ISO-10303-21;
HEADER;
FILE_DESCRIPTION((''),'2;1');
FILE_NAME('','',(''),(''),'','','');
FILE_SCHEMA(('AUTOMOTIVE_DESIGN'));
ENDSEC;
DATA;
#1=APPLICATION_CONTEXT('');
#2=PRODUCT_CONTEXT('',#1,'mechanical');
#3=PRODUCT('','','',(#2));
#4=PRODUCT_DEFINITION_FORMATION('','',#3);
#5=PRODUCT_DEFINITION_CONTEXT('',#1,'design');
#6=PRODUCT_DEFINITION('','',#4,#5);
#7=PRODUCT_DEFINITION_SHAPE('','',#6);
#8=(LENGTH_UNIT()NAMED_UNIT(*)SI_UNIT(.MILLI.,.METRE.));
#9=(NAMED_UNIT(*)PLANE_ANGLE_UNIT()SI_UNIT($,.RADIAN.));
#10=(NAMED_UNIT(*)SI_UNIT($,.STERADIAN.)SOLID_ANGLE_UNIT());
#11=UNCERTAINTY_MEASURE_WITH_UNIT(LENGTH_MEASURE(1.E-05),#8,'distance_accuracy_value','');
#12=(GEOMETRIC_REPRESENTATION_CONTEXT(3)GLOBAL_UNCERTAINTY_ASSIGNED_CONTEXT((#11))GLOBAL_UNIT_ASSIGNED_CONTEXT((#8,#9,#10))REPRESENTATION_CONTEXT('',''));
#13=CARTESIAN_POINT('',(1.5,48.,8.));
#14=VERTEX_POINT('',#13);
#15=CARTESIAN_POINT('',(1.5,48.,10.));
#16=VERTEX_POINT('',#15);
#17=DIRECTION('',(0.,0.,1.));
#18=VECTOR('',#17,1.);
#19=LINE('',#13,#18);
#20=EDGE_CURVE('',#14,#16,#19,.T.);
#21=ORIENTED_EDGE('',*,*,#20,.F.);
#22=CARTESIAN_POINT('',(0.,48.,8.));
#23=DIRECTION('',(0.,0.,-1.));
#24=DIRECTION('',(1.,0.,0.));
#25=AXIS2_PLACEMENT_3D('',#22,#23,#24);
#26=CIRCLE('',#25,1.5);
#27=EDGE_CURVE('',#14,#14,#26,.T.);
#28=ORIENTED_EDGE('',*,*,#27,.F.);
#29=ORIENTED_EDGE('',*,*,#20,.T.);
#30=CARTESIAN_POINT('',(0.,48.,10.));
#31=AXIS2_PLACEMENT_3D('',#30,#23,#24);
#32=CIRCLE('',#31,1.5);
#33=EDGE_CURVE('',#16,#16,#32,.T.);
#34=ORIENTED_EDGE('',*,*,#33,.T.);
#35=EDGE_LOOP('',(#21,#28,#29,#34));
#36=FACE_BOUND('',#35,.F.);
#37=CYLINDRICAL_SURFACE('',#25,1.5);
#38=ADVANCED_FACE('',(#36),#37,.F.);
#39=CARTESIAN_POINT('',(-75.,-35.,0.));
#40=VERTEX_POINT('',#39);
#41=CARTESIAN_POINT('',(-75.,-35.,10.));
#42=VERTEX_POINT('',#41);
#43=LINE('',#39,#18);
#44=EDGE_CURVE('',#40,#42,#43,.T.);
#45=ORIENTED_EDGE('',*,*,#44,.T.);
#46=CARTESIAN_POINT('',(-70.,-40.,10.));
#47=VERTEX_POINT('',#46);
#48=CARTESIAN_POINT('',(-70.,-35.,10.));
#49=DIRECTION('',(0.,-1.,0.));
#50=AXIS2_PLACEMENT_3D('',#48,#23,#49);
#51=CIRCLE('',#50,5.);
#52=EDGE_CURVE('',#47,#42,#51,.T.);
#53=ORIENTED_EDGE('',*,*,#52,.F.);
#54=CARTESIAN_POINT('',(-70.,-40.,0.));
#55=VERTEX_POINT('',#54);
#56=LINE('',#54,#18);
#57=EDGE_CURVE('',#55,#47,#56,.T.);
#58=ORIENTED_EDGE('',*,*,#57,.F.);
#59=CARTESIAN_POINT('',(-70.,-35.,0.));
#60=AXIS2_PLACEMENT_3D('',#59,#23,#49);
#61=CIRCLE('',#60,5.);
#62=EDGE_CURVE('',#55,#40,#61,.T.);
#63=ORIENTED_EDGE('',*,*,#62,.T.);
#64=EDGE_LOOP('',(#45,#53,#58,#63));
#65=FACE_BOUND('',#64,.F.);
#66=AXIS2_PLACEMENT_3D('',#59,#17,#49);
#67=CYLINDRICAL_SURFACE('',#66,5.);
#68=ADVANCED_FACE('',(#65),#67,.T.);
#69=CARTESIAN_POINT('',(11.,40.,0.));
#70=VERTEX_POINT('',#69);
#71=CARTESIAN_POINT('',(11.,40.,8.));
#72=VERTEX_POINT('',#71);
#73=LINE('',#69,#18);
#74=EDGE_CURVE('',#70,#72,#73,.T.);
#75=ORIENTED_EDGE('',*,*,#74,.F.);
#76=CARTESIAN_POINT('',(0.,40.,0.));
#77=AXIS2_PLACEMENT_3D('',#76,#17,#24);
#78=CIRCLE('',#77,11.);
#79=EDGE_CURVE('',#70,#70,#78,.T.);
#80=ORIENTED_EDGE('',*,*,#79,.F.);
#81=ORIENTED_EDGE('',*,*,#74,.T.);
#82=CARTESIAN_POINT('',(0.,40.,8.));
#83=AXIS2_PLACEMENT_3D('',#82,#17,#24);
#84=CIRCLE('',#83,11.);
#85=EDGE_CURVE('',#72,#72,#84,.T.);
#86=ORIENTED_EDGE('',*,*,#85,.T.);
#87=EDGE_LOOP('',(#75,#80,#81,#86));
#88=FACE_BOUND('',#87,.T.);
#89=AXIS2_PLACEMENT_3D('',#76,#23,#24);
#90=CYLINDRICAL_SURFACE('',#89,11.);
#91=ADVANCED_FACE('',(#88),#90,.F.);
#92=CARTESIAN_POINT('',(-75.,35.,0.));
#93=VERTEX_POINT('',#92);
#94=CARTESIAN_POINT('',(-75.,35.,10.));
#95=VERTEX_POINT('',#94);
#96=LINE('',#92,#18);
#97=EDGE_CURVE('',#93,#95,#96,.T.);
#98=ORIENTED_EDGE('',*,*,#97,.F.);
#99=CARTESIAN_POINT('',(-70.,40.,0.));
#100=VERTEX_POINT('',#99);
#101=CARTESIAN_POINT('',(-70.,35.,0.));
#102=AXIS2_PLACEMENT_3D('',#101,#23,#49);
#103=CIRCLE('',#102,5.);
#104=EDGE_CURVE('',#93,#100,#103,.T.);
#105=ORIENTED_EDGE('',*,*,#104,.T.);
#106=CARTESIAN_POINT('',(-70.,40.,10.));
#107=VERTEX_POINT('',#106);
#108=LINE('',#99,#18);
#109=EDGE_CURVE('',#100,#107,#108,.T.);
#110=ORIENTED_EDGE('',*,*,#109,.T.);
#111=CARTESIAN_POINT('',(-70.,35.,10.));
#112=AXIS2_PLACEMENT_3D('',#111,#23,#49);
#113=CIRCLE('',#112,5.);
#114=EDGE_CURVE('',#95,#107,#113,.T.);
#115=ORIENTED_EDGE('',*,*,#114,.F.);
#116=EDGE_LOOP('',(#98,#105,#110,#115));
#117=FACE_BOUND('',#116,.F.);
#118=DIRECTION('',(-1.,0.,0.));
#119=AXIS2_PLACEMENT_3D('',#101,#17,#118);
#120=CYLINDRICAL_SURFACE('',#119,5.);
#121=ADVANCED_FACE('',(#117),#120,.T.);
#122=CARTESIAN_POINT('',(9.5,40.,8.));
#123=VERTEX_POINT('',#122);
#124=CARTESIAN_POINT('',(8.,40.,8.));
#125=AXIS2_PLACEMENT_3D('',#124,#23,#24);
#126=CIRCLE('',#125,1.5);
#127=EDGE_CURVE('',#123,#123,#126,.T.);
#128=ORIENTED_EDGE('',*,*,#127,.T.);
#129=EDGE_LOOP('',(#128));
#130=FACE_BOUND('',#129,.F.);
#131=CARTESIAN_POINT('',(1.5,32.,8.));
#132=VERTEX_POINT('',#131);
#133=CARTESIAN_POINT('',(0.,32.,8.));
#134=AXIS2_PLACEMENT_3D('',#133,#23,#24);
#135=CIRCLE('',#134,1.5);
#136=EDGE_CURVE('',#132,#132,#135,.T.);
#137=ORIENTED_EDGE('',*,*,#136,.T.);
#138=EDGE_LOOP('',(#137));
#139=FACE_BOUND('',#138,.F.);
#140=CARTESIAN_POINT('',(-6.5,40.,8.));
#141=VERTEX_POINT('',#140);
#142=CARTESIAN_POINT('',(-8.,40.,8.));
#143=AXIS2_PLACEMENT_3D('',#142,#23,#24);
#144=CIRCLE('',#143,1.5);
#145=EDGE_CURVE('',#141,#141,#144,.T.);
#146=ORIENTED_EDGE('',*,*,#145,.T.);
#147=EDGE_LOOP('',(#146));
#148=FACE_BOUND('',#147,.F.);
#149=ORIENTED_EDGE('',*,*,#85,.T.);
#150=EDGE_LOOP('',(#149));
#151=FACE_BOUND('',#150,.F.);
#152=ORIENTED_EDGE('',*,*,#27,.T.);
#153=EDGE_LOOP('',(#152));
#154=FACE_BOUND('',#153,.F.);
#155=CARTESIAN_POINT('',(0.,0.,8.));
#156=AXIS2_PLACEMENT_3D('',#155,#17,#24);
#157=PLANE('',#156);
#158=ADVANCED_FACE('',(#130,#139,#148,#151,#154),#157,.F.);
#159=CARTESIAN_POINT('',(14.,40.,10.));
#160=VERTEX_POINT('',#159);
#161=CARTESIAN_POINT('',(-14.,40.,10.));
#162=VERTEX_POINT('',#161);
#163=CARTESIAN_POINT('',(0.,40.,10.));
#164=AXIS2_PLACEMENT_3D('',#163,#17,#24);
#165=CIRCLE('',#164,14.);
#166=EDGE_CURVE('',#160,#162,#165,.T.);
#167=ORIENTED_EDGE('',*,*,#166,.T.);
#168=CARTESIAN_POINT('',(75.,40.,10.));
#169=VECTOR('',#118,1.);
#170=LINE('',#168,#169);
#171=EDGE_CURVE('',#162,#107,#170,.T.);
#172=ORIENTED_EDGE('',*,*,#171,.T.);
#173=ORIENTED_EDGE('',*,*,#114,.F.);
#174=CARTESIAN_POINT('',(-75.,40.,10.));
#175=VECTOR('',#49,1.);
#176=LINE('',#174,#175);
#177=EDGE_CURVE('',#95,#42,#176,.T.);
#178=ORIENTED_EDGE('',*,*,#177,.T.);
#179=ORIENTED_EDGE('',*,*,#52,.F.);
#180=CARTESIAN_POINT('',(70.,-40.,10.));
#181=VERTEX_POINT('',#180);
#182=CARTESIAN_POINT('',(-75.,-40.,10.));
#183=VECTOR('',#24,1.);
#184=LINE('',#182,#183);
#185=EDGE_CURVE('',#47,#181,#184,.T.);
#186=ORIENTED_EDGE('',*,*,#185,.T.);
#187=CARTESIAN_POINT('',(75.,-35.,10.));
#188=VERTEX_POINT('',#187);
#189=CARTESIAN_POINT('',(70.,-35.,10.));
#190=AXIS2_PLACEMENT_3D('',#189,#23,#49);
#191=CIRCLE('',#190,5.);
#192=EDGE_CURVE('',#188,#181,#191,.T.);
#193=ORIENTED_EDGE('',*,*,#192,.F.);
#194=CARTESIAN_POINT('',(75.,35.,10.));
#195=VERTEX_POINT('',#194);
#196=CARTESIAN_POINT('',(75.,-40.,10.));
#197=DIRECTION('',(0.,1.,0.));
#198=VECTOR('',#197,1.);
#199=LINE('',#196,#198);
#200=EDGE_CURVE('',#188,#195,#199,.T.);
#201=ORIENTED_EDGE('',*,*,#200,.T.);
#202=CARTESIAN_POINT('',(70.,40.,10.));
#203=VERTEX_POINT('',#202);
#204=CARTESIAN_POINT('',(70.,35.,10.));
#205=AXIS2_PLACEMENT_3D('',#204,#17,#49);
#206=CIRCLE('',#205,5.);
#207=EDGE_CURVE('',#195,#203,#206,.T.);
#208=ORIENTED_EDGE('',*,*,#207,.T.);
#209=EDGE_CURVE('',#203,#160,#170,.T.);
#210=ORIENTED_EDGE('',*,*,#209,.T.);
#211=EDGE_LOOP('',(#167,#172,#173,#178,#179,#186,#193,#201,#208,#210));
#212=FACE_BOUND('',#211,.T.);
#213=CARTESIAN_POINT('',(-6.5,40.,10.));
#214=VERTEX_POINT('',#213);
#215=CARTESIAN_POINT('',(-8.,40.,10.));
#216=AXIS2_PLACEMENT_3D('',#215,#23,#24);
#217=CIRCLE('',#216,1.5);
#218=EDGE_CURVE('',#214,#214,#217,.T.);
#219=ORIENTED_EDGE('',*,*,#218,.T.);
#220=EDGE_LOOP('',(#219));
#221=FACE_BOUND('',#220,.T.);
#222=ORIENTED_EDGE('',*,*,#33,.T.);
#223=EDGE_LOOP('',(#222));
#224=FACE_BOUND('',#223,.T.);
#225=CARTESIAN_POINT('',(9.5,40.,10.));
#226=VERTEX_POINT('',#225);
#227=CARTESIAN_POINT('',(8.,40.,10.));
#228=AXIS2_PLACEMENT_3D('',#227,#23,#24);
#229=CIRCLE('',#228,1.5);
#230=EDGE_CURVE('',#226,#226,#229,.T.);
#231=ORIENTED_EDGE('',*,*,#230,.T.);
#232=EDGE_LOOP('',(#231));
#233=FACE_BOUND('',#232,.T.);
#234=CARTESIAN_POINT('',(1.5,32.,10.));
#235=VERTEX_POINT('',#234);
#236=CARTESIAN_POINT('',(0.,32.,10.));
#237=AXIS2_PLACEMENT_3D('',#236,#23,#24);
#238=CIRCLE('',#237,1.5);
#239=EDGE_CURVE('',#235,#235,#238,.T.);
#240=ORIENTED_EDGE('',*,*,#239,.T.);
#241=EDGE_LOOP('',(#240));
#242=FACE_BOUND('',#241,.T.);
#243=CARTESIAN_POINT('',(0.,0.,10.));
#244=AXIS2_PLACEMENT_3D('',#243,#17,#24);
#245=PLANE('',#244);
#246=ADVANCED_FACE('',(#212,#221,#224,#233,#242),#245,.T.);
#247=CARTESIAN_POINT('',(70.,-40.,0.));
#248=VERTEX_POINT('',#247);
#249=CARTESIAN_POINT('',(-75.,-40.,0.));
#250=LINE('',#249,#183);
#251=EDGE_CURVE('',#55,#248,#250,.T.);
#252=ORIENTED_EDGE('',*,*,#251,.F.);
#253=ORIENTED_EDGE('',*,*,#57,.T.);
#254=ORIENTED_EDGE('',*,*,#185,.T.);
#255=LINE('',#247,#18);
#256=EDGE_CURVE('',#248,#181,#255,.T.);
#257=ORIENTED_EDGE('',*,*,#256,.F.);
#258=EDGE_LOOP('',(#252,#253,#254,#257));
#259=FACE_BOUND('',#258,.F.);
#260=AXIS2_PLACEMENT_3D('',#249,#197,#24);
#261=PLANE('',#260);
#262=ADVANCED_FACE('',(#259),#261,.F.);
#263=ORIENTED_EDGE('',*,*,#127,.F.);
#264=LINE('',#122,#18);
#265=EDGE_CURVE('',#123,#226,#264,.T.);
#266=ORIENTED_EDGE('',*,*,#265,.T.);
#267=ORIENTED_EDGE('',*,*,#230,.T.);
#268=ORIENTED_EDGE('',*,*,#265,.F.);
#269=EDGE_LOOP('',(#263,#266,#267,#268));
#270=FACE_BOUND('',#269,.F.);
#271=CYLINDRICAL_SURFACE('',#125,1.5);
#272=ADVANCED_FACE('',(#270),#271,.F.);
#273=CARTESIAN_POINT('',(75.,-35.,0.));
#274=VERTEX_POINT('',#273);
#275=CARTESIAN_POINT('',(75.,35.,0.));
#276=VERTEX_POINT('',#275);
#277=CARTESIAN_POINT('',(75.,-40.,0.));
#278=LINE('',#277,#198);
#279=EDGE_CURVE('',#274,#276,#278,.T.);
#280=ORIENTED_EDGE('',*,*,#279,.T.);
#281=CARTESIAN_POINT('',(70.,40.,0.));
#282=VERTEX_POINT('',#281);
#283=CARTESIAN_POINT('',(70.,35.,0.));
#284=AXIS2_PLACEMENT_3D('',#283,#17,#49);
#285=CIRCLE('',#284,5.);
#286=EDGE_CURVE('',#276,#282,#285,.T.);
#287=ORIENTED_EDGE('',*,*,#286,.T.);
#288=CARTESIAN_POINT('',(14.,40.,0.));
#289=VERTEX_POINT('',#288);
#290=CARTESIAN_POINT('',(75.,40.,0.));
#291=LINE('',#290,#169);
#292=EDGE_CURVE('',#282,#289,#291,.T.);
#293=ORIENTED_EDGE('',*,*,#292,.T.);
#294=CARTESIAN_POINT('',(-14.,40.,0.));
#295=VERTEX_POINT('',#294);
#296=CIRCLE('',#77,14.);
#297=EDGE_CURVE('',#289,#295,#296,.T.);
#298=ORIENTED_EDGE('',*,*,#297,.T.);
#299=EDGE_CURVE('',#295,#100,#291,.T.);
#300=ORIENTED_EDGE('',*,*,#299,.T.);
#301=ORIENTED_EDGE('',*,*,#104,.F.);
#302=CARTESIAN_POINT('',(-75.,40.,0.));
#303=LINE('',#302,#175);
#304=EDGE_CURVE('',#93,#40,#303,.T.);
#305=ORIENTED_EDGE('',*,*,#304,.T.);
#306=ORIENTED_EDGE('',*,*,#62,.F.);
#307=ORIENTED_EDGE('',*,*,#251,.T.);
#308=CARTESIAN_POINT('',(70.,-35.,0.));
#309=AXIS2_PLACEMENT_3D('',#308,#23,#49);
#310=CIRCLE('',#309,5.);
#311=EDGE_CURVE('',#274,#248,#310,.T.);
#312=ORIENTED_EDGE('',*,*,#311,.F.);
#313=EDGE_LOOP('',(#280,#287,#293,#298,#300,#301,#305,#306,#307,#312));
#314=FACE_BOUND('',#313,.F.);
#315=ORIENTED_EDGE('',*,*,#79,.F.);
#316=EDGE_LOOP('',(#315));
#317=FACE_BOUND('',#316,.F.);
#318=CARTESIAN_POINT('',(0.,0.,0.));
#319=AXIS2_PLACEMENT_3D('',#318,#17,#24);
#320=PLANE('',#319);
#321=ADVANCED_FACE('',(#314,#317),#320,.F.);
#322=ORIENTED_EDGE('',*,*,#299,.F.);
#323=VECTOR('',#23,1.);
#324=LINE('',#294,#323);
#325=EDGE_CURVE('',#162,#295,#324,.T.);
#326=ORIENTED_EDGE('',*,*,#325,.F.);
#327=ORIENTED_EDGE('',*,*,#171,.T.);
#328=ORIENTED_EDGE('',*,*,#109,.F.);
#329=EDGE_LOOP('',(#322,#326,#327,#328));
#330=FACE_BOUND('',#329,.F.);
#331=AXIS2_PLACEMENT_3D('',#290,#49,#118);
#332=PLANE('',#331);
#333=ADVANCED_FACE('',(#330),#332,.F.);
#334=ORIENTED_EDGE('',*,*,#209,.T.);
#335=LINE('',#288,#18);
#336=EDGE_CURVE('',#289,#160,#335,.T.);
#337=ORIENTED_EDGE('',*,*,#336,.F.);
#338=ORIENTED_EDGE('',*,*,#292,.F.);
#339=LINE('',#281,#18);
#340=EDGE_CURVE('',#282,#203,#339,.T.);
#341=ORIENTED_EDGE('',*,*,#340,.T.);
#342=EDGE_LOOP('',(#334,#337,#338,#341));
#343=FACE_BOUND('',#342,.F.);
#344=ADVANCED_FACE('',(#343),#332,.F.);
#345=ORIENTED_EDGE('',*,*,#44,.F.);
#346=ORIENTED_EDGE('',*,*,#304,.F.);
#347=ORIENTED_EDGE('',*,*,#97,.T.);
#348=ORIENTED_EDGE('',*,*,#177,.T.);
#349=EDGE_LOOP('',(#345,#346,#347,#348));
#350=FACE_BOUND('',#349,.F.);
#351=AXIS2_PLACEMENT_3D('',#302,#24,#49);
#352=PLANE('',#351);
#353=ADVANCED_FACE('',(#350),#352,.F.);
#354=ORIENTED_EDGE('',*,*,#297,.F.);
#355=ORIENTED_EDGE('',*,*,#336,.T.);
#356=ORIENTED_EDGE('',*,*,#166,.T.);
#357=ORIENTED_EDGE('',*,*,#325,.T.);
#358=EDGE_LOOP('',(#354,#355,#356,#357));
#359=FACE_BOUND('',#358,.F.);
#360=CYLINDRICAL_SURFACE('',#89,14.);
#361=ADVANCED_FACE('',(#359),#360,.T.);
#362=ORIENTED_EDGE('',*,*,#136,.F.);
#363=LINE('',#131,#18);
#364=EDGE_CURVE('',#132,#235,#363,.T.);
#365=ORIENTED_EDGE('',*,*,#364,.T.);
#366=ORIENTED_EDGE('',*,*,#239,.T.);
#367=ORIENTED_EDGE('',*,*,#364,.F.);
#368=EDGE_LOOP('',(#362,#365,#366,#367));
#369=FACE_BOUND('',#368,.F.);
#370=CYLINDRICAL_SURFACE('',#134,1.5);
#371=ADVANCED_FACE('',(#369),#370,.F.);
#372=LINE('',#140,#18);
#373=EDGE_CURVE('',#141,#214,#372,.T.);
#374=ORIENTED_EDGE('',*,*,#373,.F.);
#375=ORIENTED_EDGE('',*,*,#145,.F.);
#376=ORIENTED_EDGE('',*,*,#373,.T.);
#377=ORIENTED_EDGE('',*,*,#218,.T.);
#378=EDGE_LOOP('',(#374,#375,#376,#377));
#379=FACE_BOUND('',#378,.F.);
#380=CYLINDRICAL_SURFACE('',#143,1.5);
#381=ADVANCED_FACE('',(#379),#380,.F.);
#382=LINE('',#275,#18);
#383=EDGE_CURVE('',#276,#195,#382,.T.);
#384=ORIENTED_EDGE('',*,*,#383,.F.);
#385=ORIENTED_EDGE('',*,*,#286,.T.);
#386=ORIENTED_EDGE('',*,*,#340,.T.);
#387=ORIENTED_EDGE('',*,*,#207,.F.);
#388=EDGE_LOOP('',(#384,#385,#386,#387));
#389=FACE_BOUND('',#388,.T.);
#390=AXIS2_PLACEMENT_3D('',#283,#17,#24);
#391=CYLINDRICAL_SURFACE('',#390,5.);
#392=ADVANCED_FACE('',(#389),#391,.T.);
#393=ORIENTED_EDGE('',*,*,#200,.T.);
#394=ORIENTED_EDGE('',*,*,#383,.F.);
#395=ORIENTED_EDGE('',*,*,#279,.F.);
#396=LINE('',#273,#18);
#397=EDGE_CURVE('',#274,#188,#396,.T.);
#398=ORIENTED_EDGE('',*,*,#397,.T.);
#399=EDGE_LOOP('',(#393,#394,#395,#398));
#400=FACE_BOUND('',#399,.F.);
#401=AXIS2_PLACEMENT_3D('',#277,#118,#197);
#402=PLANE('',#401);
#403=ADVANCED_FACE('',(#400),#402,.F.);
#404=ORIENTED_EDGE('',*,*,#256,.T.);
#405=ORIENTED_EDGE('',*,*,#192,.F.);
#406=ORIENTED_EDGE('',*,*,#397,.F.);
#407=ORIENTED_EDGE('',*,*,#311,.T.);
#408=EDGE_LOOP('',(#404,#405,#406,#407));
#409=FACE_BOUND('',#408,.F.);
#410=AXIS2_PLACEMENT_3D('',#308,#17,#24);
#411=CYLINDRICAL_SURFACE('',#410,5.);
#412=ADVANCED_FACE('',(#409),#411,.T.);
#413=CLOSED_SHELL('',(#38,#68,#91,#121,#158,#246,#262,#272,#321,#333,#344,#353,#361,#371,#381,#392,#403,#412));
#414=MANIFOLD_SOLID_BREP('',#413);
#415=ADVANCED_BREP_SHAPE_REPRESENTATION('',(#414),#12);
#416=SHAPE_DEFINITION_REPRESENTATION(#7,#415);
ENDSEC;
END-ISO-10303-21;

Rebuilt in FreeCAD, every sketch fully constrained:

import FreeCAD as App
import Part
import Sketcher
from FreeCAD import Vector


def edges_at(feature, points):
    """Names of the edges that pass closest to the given points."""
    edges = feature.Shape.Edges
    near = lambda p: min(range(len(edges)), key=lambda i: edges[i].distToShape(Part.Vertex(*p))[0])
    return sorted({f"Edge{near(p) + 1}" for p in points})


def add_polygon(sketch, points):
    """Adds a closed chain of lines whose ends are joined by coincident constraints."""
    first, n = sketch.GeometryCount, len(points)
    for a, b in zip(points, points[1:] + points[:1]):
        sketch.addGeometry(Part.LineSegment(App.Vector(*a, 0), App.Vector(*b, 0)), False)
    for i in range(n):
        sketch.addConstraint(Sketcher.Constraint("Coincident", first + i, 2, first + (i + 1) % n, 1))

doc = App.newDocument("Part")
body = doc.addObject("PartDesign::Body", "Body")

sketch1 = body.newObject("Sketcher::SketchObject", "Sketch")
sketch1.AttachmentSupport = (doc.getObject("XY_Plane"), [""])
sketch1.MapMode = "FlatFace"
add_polygon(sketch1, [(75, -40), (75, 40), (-75, 40), (-75, -40)])
sketch1.addConstraint(Sketcher.Constraint("Vertical", 0))
sketch1.addConstraint(Sketcher.Constraint("Horizontal", 1))
sketch1.addConstraint(Sketcher.Constraint("Vertical", 2))
sketch1.addConstraint(Sketcher.Constraint("Horizontal", 3))
sketch1.addConstraint(Sketcher.Constraint("Symmetric", 0, 2, 2, 2, -1, 1))
sketch1.addConstraint(Sketcher.Constraint("DistanceX", 1, 2, 1, 1, 150.0))
sketch1.addConstraint(Sketcher.Constraint("DistanceY", 0, 1, 0, 2, 80.0))
pad1 = body.newObject("PartDesign::Pad", "Pad")
pad1.Profile = sketch1
pad1.Length = 10

sketch2 = body.newObject("Sketcher::SketchObject", "Sketch001")
sketch2.AttachmentSupport = (doc.getObject("XY_Plane"), [""])
sketch2.MapMode = "FlatFace"
sketch2.addGeometry(Part.Circle(Vector(0, 40, 0), Vector(0, 0, 1), 14), False)
sketch2.addConstraint(Sketcher.Constraint("PointOnObject", 0, 3, -2))
sketch2.addConstraint(Sketcher.Constraint("Diameter", 0, 28.0))
sketch2.addConstraint(Sketcher.Constraint("DistanceY", -1, 1, 0, 3, 40.0))
pad2 = body.newObject("PartDesign::Pad", "Pad001")
pad2.Profile = sketch2
pad2.Length = 10

sketch3 = body.newObject("Sketcher::SketchObject", "Sketch002")
sketch3.AttachmentSupport = (doc.getObject("XY_Plane"), [""])
sketch3.MapMode = "FlatFace"
sketch3.addGeometry(Part.Circle(Vector(0, 40, 0), Vector(0, 0, 1), 11), False)
sketch3.addConstraint(Sketcher.Constraint("PointOnObject", 0, 3, -2))
sketch3.addConstraint(Sketcher.Constraint("Diameter", 0, 22.0))
sketch3.addConstraint(Sketcher.Constraint("DistanceY", -1, 1, 0, 3, 40.0))
pocket1 = body.newObject("PartDesign::Pocket", "Pocket")
pocket1.Profile = sketch3
pocket1.Length = 8
pocket1.Reversed = True
doc.recompute()

fillet = body.newObject("PartDesign::Fillet", "Fillet")
fillet.Base = (pocket1, edges_at(pocket1, [
    (75, -40, 5),
    (75, 40, 5),
    (-75, -40, 5),
    (-75, 40, 5),
]))
fillet.Radius = 5

sketch4 = body.newObject("Sketcher::SketchObject", "Sketch003")
sketch4.AttachmentSupport = (doc.getObject("XY_Plane"), [""])
sketch4.MapMode = "FlatFace"
sketch4.AttachmentOffset = App.Placement(Vector(0, 0, 8), App.Rotation())
sketch4.addGeometry(Part.Circle(Vector(0, 32, 0), Vector(0, 0, 1), 1.5), False)
sketch4.addGeometry(Part.Circle(Vector(0, 48, 0), Vector(0, 0, 1), 1.5), False)
sketch4.addGeometry(Part.Circle(Vector(-8, 40, 0), Vector(0, 0, 1), 1.5), False)
sketch4.addGeometry(Part.Circle(Vector(8, 40, 0), Vector(0, 0, 1), 1.5), False)
sketch4.addConstraint(Sketcher.Constraint("Equal", 0, 1))
sketch4.addConstraint(Sketcher.Constraint("Equal", 1, 2))
sketch4.addConstraint(Sketcher.Constraint("Equal", 2, 3))
sketch4.addConstraint(Sketcher.Constraint("Symmetric", 2, 3, 3, 3, -2))
sketch4.addConstraint(Sketcher.Constraint("PointOnObject", 0, 3, -2))
sketch4.addConstraint(Sketcher.Constraint("PointOnObject", 1, 3, -2))
sketch4.addConstraint(Sketcher.Constraint("Diameter", 0, 3.0))
sketch4.addConstraint(Sketcher.Constraint("DistanceY", -1, 1, 0, 3, 32.0))
sketch4.addConstraint(Sketcher.Constraint("DistanceY", -1, 1, 1, 3, 48.0))
sketch4.addConstraint(Sketcher.Constraint("DistanceX", 2, 3, -1, 1, 8.0))
sketch4.addConstraint(Sketcher.Constraint("DistanceY", -1, 1, 2, 3, 40.0))
pocket2 = body.newObject("PartDesign::Pocket", "Pocket001")
pocket2.Profile = sketch4
pocket2.Length = 2
pocket2.Reversed = True

doc.recompute()
